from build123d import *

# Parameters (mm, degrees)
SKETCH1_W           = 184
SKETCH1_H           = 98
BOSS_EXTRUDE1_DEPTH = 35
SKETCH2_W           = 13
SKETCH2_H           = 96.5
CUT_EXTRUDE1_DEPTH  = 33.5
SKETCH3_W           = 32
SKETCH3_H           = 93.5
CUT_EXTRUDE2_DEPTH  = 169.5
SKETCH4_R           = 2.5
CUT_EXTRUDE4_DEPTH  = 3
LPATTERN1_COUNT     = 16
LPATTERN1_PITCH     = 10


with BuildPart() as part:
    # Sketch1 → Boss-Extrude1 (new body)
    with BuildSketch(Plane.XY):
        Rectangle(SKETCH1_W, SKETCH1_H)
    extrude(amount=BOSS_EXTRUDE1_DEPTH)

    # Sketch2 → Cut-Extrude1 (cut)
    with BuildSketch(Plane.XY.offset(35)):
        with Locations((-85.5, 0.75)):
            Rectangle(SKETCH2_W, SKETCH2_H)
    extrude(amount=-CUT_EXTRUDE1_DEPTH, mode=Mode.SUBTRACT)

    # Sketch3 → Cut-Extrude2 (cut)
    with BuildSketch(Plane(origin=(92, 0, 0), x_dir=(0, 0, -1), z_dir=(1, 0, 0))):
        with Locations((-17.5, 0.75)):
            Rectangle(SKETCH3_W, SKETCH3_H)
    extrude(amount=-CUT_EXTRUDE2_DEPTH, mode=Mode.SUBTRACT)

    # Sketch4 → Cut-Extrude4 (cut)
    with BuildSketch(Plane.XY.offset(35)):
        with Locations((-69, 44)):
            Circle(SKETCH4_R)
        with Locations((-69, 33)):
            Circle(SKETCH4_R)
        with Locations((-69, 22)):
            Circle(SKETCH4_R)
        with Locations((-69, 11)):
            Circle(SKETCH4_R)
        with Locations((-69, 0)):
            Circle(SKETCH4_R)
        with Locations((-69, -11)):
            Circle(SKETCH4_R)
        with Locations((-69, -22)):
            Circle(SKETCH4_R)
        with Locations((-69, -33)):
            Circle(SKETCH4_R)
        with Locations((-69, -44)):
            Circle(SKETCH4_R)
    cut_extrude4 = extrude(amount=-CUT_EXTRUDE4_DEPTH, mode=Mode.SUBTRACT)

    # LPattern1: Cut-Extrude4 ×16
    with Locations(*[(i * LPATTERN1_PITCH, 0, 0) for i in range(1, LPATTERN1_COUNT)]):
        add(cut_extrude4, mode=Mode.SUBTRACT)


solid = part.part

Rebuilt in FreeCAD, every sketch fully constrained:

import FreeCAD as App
import Part
import Sketcher

V = App.Vector


def add_polygon(sketch, points):
    """Adds a closed chain of lines whose ends are joined by coincident constraints."""
    first, n = sketch.GeometryCount, len(points)
    for a, b in zip(points, points[1:] + points[:1]):
        sketch.addGeometry(Part.LineSegment(App.Vector(*a, 0), App.Vector(*b, 0)), False)
    for i in range(n):
        sketch.addConstraint(Sketcher.Constraint("Coincident", first + i, 2, first + (i + 1) % n, 1))

doc = App.newDocument("Part")
params = doc.addObject("Spreadsheet::Sheet", "Params")
for row, (alias, value) in enumerate([
    ("sketch1_width", "184 mm"),
    ("sketch1_height", "98 mm"),
    ("pad1_length", "35 mm"),
    ("sketch2_width", "13 mm"),
    ("sketch2_height", "96.5 mm"),
    ("pocket1_length", "33.5 mm"),
    ("sketch3_height", "32 mm"),
    ("sketch3_width", "93.5 mm"),
    ("pocket2_length", "169.5 mm"),
    ("sketch4_diameter", "5 mm"),
    ("pocket3_length", "3 mm"),
    ("linearpattern_pitch", "10 mm"),
], start=1):
    params.set(f"A{row}", alias)
    params.set(f"B{row}", "=" + value)
    params.setAlias(f"B{row}", alias)

body = doc.addObject("PartDesign::Body", "Body")

# Sketch on XY plane
sketch1 = body.newObject("Sketcher::SketchObject", "Sketch")
sketch1.AttachmentSupport = (doc.getObject("XY_Plane"), [""])
sketch1.MapMode = "FlatFace"
add_polygon(sketch1, [(-92, 49), (-92, -49), (92, -49), (92, 49)])  # lines 0-3
sketch1.addConstraint([
    Sketcher.Constraint("Vertical", 0),
    Sketcher.Constraint("Horizontal", 1),
    Sketcher.Constraint("Vertical", 2),
    Sketcher.Constraint("Horizontal", 3),
    Sketcher.Constraint("Symmetric", 0, 2, 2, 2, -1, 1),
    Sketcher.Constraint("DistanceX", 1, 1, 1, 2, 184.0),
    Sketcher.Constraint("DistanceY", 0, 2, 0, 1, 98.0),
])
sketch1.setExpression("Constraints[9]", "Params.sketch1_width")
sketch1.setExpression("Constraints[10]", "Params.sketch1_height")
pad1 = body.newObject("PartDesign::Pad", "Pad")
pad1.Profile = sketch1
pad1.setExpression("Length", "Params.pad1_length")

# Sketch on XY plane
sketch2 = body.newObject("Sketcher::SketchObject", "Sketch001")
sketch2.AttachmentSupport = (doc.getObject("XY_Plane"), [""])
sketch2.MapMode = "FlatFace"
sketch2.AttachmentOffset = App.Placement(V(0, 0, 35), App.Rotation())
add_polygon(sketch2, [(-92, 49), (-92, -47.5), (-79, -47.5), (-79, 49)])  # lines 0-3
sketch2.addConstraint([
    Sketcher.Constraint("Vertical", 0),
    Sketcher.Constraint("Horizontal", 1),
    Sketcher.Constraint("Vertical", 2),
    Sketcher.Constraint("Horizontal", 3),
    Sketcher.Constraint("DistanceX", 1, 1, 1, 2, 13.0),
    Sketcher.Constraint("DistanceY", 0, 2, 0, 1, 96.5),
    Sketcher.Constraint("DistanceX", 0, 2, -1, 1, 92.0),
    Sketcher.Constraint("DistanceY", -1, 1, 2, 2, 49.0),
])
sketch2.setExpression("Constraints[8]", "Params.sketch2_width")
sketch2.setExpression("Constraints[9]", "Params.sketch2_height")
pocket1 = body.newObject("PartDesign::Pocket", "Pocket")
pocket1.Profile = sketch2
pocket1.setExpression("Length", "Params.pocket1_length")

# Sketch on YZ plane
sketch3 = body.newObject("Sketcher::SketchObject", "Sketch002")
sketch3.AttachmentSupport = (doc.getObject("YZ_Plane"), [""])
sketch3.MapMode = "FlatFace"
sketch3.AttachmentOffset = App.Placement(V(0, 0, 92), App.Rotation())
add_polygon(sketch3, [(47.5, 33.5), (-46, 33.5), (-46, 1.5), (47.5, 1.5)])  # lines 0-3
sketch3.addConstraint([
    Sketcher.Constraint("Horizontal", 0),
    Sketcher.Constraint("Vertical", 1),
    Sketcher.Constraint("Horizontal", 2),
    Sketcher.Constraint("Vertical", 3),
    Sketcher.Constraint("DistanceY", 1, 2, 1, 1, 32.0),
    Sketcher.Constraint("DistanceX", 0, 2, 0, 1, 93.5),
    Sketcher.Constraint("DistanceX", 0, 2, -1, 1, 46.0),
    Sketcher.Constraint("DistanceY", -1, 1, 0, 2, 33.5),
])
sketch3.setExpression("Constraints[8]", "Params.sketch3_height")
sketch3.setExpression("Constraints[9]", "Params.sketch3_width")
pocket2 = body.newObject("PartDesign::Pocket", "Pocket001")
pocket2.Profile = sketch3
pocket2.setExpression("Length", "Params.pocket2_length")

# Sketch on XY plane
sketch4 = body.newObject("Sketcher::SketchObject", "Sketch003")
sketch4.AttachmentSupport = (doc.getObject("XY_Plane"), [""])
sketch4.MapMode = "FlatFace"
sketch4.AttachmentOffset = App.Placement(V(0, 0, 35), App.Rotation())
sketch4.addGeometry([
    Part.Circle(V(-69, 44, 0), V(0, 0, 1), 2.5),  # 0
    Part.Circle(V(-69, 33, 0), V(0, 0, 1), 2.5),  # 1
    Part.Circle(V(-69, 22, 0), V(0, 0, 1), 2.5),  # 2
    Part.Circle(V(-69, 11, 0), V(0, 0, 1), 2.5),  # 3
    Part.Circle(V(-69, 0, 0), V(0, 0, 1), 2.5),  # 4
    Part.Circle(V(-69, -11, 0), V(0, 0, 1), 2.5),  # 5
    Part.Circle(V(-69, -22, 0), V(0, 0, 1), 2.5),  # 6
    Part.Circle(V(-69, -33, 0), V(0, 0, 1), 2.5),  # 7
    Part.Circle(V(-69, -44, 0), V(0, 0, 1), 2.5),  # 8
], False)
sketch4.addConstraint([
    Sketcher.Constraint("Equal", 0, 1),
    Sketcher.Constraint("Equal", 1, 2),
    Sketcher.Constraint("Equal", 2, 3),
    Sketcher.Constraint("Equal", 3, 4),
    Sketcher.Constraint("Equal", 4, 5),
    Sketcher.Constraint("Equal", 5, 6),
    Sketcher.Constraint("Equal", 6, 7),
    Sketcher.Constraint("Equal", 7, 8),
    Sketcher.Constraint("Symmetric", 3, 3, 5, 3, -1),
    Sketcher.Constraint("Symmetric", 2, 3, 6, 3, -1),
    Sketcher.Constraint("Symmetric", 1, 3, 7, 3, -1),
    Sketcher.Constraint("Symmetric", 0, 3, 8, 3, -1),
    Sketcher.Constraint("PointOnObject", 4, 3, -1),
    Sketcher.Constraint("Vertical", 0, 3, 1, 3),
    Sketcher.Constraint("Vertical", 1, 3, 2, 3),
    Sketcher.Constraint("Vertical", 2, 3, 3, 3),
    Sketcher.Constraint("Vertical", 3, 3, 4, 3),
    Sketcher.Constraint("Diameter", 0, 5.0),
    Sketcher.Constraint("DistanceX", 0, 3, -1, 1, 69.0),
    Sketcher.Constraint("DistanceY", -1, 1, 0, 3, 44.0),
    Sketcher.Constraint("DistanceY", -1, 1, 1, 3, 33.0),
    Sketcher.Constraint("DistanceY", -1, 1, 2, 3, 22.0),
    Sketcher.Constraint("DistanceY", -1, 1, 3, 3, 11.0),
])
sketch4.setExpression("Constraints[17]", "Params.sketch4_diameter")
pocket3 = body.newObject("PartDesign::Pocket", "Pocket002")
pocket3.Profile = sketch4
pocket3.setExpression("Length", "Params.pocket3_length")
doc.recompute()

linearpattern = body.newObject("PartDesign::LinearPattern", "LinearPattern")
linearpattern.Originals = [pocket3]
linearpattern.Direction = (doc.getObject("X_Axis"), [""])
linearpattern.Mode = "offset"
linearpattern.setExpression("Offset", "Params.linearpattern_pitch")
linearpattern.Occurrences = 16
body.Tip = linearpattern

doc.recompute()
